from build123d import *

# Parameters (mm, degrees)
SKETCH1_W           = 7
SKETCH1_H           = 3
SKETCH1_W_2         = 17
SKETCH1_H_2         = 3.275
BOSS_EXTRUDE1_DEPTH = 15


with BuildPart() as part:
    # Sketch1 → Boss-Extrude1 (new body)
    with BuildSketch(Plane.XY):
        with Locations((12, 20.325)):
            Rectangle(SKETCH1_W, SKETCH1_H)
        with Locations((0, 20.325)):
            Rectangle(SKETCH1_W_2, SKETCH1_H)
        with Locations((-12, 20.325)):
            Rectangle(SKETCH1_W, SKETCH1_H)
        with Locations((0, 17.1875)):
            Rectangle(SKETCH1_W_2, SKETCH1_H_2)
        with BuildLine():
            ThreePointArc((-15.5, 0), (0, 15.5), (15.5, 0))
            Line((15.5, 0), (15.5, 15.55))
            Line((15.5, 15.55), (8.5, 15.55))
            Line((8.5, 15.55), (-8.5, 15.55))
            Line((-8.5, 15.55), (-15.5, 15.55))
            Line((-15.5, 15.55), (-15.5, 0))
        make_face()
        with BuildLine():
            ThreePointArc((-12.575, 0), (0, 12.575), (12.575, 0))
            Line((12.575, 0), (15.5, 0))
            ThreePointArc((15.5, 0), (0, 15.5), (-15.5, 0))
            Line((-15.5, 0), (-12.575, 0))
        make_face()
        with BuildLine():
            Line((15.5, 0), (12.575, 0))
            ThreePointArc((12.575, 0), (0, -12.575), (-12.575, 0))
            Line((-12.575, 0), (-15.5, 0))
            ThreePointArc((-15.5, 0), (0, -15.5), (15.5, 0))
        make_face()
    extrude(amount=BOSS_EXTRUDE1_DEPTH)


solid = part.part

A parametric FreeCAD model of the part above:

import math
import FreeCAD as App
import Part
import Sketcher

doc = App.newDocument("Part")
params = doc.addObject("Spreadsheet::Sheet", "Params")
for row, (alias, value) in enumerate([
    ("sketch1_radius", "15.5 mm"),
    ("sketch1_diameter", "25.15 mm"),
    ("sketch1_width", "7 mm"),
    ("sketch1_height", "3 mm"),
    ("sketch1_height2", "15.55 mm"),
    ("pad1_length", "15 mm"),
], start=1):
    params.set(f"A{row}", alias)
    params.set(f"B{row}", "=" + value)
    params.setAlias(f"B{row}", alias)

body = doc.addObject("PartDesign::Body", "Body")

# Sketch on XY plane
sketch1 = body.newObject("Sketcher::SketchObject", "Sketch")
sketch1.AttachmentSupport = (doc.getObject("XY_Plane"), [""])
sketch1.MapMode = "FlatFace"
sketch1.addGeometry(Part.LineSegment(App.Vector(8.5, 15.55, 0), App.Vector(8.5, 18.825, 0)), False)
sketch1.addGeometry(Part.LineSegment(App.Vector(8.5, 18.825, 0), App.Vector(15.5, 18.825, 0)), False)
sketch1.addGeometry(Part.LineSegment(App.Vector(15.5, 18.825, 0), App.Vector(15.5, 21.825, 0)), False)
sketch1.addGeometry(Part.LineSegment(App.Vector(15.5, 21.825, 0), App.Vector(-15.5, 21.825, 0)), False)
sketch1.addGeometry(Part.LineSegment(App.Vector(-15.5, 21.825, 0), App.Vector(-15.5, 18.825, 0)), False)
sketch1.addGeometry(Part.LineSegment(App.Vector(-15.5, 18.825, 0), App.Vector(-8.5, 18.825, 0)), False)
sketch1.addGeometry(Part.LineSegment(App.Vector(-8.5, 18.825, 0), App.Vector(-8.5, 15.55, 0)), False)
sketch1.addGeometry(Part.LineSegment(App.Vector(-8.5, 15.55, 0), App.Vector(-15.5, 15.55, 0)), False)
sketch1.addGeometry(Part.LineSegment(App.Vector(-15.5, 15.55, 0), App.Vector(-15.5, 0, 0)), False)
sketch1.addGeometry(Part.ArcOfCircle(Part.Circle(App.Vector(0, 0, 0), App.Vector(0, 0, 1), 15.5), math.radians(180), math.radians(360)), False)
sketch1.addGeometry(Part.LineSegment(App.Vector(15.5, 0, 0), App.Vector(15.5, 15.55, 0)), False)
sketch1.addGeometry(Part.LineSegment(App.Vector(15.5, 15.55, 0), App.Vector(8.5, 15.55, 0)), False)
sketch1.addGeometry(Part.Circle(App.Vector(0, 0, 0), App.Vector(0, 0, 1), 12.575), False)
sketch1.addConstraint(Sketcher.Constraint("Coincident", 0, 2, 1, 1))
sketch1.addConstraint(Sketcher.Constraint("Coincident", 1, 2, 2, 1))
sketch1.addConstraint(Sketcher.Constraint("Coincident", 2, 2, 3, 1))
sketch1.addConstraint(Sketcher.Constraint("Coincident", 3, 2, 4, 1))
sketch1.addConstraint(Sketcher.Constraint("Coincident", 4, 2, 5, 1))
sketch1.addConstraint(Sketcher.Constraint("Coincident", 5, 2, 6, 1))
sketch1.addConstraint(Sketcher.Constraint("Coincident", 6, 2, 7, 1))
sketch1.addConstraint(Sketcher.Constraint("Coincident", 7, 2, 8, 1))
sketch1.addConstraint(Sketcher.Constraint("Tangent", 8, 2, 9, 1))
sketch1.addConstraint(Sketcher.Constraint("Tangent", 9, 2, 10, 1))
sketch1.addConstraint(Sketcher.Constraint("Coincident", 10, 2, 11, 1))
sketch1.addConstraint(Sketcher.Constraint("Coincident", 11, 2, 0, 1))
sketch1.addConstraint(Sketcher.Constraint("Vertical", 0))
sketch1.addConstraint(Sketcher.Constraint("Horizontal", 1))
sketch1.addConstraint(Sketcher.Constraint("Vertical", 2))
sketch1.addConstraint(Sketcher.Constraint("Horizontal", 3))
sketch1.addConstraint(Sketcher.Constraint("Vertical", 4))
sketch1.addConstraint(Sketcher.Constraint("Horizontal", 5))
sketch1.addConstraint(Sketcher.Constraint("Vertical", 6))
sketch1.addConstraint(Sketcher.Constraint("Horizontal", 7))
sketch1.addConstraint(Sketcher.Constraint("Vertical", 8))
sketch1.addConstraint(Sketcher.Constraint("Vertical", 10))
sketch1.addConstraint(Sketcher.Constraint("Horizontal", 11))
sketch1.addConstraint(Sketcher.Constraint("Coincident", 9, 3, -1, 1))
sketch1.addConstraint(Sketcher.Constraint("Coincident", 12, 3, -1, 1))
sketch1.addConstraint(Sketcher.Constraint("Symmetric", 1, 2, 4, 2, -2))
sketch1.addConstraint(Sketcher.Constraint("Symmetric", 6, 2, 11, 2, -2))
sketch1.addConstraint(Sketcher.Constraint("Vertical", 4, 2, 7, 2))
sketch1.addConstraint(Sketcher.Constraint("Radius", 9, 15.5))
sketch1.addConstraint(Sketcher.Constraint("Diameter", 12, 25.15))
sketch1.addConstraint(Sketcher.Constraint("DistanceX", 1, 1, 1, 2, 7.0))
sketch1.addConstraint(Sketcher.Constraint("DistanceY", 2, 1, 2, 2, 3.0))
sketch1.addConstraint(Sketcher.Constraint("DistanceY", 8, 2, 8, 1, 15.55))
sketch1.addConstraint(Sketcher.Constraint("DistanceY", 0, 1, 0, 2, 3.275))
sketch1.setExpression("Constraints[28]", "Params.sketch1_radius")
sketch1.setExpression("Constraints[29]", "Params.sketch1_diameter")
sketch1.setExpression("Constraints[30]", "Params.sketch1_width")
sketch1.setExpression("Constraints[31]", "Params.sketch1_height")
sketch1.setExpression("Constraints[32]", "Params.sketch1_height2")
pad1 = body.newObject("PartDesign::Pad", "Pad")
pad1.Profile = sketch1
pad1.setExpression("Length", "Params.pad1_length")

doc.recompute()
